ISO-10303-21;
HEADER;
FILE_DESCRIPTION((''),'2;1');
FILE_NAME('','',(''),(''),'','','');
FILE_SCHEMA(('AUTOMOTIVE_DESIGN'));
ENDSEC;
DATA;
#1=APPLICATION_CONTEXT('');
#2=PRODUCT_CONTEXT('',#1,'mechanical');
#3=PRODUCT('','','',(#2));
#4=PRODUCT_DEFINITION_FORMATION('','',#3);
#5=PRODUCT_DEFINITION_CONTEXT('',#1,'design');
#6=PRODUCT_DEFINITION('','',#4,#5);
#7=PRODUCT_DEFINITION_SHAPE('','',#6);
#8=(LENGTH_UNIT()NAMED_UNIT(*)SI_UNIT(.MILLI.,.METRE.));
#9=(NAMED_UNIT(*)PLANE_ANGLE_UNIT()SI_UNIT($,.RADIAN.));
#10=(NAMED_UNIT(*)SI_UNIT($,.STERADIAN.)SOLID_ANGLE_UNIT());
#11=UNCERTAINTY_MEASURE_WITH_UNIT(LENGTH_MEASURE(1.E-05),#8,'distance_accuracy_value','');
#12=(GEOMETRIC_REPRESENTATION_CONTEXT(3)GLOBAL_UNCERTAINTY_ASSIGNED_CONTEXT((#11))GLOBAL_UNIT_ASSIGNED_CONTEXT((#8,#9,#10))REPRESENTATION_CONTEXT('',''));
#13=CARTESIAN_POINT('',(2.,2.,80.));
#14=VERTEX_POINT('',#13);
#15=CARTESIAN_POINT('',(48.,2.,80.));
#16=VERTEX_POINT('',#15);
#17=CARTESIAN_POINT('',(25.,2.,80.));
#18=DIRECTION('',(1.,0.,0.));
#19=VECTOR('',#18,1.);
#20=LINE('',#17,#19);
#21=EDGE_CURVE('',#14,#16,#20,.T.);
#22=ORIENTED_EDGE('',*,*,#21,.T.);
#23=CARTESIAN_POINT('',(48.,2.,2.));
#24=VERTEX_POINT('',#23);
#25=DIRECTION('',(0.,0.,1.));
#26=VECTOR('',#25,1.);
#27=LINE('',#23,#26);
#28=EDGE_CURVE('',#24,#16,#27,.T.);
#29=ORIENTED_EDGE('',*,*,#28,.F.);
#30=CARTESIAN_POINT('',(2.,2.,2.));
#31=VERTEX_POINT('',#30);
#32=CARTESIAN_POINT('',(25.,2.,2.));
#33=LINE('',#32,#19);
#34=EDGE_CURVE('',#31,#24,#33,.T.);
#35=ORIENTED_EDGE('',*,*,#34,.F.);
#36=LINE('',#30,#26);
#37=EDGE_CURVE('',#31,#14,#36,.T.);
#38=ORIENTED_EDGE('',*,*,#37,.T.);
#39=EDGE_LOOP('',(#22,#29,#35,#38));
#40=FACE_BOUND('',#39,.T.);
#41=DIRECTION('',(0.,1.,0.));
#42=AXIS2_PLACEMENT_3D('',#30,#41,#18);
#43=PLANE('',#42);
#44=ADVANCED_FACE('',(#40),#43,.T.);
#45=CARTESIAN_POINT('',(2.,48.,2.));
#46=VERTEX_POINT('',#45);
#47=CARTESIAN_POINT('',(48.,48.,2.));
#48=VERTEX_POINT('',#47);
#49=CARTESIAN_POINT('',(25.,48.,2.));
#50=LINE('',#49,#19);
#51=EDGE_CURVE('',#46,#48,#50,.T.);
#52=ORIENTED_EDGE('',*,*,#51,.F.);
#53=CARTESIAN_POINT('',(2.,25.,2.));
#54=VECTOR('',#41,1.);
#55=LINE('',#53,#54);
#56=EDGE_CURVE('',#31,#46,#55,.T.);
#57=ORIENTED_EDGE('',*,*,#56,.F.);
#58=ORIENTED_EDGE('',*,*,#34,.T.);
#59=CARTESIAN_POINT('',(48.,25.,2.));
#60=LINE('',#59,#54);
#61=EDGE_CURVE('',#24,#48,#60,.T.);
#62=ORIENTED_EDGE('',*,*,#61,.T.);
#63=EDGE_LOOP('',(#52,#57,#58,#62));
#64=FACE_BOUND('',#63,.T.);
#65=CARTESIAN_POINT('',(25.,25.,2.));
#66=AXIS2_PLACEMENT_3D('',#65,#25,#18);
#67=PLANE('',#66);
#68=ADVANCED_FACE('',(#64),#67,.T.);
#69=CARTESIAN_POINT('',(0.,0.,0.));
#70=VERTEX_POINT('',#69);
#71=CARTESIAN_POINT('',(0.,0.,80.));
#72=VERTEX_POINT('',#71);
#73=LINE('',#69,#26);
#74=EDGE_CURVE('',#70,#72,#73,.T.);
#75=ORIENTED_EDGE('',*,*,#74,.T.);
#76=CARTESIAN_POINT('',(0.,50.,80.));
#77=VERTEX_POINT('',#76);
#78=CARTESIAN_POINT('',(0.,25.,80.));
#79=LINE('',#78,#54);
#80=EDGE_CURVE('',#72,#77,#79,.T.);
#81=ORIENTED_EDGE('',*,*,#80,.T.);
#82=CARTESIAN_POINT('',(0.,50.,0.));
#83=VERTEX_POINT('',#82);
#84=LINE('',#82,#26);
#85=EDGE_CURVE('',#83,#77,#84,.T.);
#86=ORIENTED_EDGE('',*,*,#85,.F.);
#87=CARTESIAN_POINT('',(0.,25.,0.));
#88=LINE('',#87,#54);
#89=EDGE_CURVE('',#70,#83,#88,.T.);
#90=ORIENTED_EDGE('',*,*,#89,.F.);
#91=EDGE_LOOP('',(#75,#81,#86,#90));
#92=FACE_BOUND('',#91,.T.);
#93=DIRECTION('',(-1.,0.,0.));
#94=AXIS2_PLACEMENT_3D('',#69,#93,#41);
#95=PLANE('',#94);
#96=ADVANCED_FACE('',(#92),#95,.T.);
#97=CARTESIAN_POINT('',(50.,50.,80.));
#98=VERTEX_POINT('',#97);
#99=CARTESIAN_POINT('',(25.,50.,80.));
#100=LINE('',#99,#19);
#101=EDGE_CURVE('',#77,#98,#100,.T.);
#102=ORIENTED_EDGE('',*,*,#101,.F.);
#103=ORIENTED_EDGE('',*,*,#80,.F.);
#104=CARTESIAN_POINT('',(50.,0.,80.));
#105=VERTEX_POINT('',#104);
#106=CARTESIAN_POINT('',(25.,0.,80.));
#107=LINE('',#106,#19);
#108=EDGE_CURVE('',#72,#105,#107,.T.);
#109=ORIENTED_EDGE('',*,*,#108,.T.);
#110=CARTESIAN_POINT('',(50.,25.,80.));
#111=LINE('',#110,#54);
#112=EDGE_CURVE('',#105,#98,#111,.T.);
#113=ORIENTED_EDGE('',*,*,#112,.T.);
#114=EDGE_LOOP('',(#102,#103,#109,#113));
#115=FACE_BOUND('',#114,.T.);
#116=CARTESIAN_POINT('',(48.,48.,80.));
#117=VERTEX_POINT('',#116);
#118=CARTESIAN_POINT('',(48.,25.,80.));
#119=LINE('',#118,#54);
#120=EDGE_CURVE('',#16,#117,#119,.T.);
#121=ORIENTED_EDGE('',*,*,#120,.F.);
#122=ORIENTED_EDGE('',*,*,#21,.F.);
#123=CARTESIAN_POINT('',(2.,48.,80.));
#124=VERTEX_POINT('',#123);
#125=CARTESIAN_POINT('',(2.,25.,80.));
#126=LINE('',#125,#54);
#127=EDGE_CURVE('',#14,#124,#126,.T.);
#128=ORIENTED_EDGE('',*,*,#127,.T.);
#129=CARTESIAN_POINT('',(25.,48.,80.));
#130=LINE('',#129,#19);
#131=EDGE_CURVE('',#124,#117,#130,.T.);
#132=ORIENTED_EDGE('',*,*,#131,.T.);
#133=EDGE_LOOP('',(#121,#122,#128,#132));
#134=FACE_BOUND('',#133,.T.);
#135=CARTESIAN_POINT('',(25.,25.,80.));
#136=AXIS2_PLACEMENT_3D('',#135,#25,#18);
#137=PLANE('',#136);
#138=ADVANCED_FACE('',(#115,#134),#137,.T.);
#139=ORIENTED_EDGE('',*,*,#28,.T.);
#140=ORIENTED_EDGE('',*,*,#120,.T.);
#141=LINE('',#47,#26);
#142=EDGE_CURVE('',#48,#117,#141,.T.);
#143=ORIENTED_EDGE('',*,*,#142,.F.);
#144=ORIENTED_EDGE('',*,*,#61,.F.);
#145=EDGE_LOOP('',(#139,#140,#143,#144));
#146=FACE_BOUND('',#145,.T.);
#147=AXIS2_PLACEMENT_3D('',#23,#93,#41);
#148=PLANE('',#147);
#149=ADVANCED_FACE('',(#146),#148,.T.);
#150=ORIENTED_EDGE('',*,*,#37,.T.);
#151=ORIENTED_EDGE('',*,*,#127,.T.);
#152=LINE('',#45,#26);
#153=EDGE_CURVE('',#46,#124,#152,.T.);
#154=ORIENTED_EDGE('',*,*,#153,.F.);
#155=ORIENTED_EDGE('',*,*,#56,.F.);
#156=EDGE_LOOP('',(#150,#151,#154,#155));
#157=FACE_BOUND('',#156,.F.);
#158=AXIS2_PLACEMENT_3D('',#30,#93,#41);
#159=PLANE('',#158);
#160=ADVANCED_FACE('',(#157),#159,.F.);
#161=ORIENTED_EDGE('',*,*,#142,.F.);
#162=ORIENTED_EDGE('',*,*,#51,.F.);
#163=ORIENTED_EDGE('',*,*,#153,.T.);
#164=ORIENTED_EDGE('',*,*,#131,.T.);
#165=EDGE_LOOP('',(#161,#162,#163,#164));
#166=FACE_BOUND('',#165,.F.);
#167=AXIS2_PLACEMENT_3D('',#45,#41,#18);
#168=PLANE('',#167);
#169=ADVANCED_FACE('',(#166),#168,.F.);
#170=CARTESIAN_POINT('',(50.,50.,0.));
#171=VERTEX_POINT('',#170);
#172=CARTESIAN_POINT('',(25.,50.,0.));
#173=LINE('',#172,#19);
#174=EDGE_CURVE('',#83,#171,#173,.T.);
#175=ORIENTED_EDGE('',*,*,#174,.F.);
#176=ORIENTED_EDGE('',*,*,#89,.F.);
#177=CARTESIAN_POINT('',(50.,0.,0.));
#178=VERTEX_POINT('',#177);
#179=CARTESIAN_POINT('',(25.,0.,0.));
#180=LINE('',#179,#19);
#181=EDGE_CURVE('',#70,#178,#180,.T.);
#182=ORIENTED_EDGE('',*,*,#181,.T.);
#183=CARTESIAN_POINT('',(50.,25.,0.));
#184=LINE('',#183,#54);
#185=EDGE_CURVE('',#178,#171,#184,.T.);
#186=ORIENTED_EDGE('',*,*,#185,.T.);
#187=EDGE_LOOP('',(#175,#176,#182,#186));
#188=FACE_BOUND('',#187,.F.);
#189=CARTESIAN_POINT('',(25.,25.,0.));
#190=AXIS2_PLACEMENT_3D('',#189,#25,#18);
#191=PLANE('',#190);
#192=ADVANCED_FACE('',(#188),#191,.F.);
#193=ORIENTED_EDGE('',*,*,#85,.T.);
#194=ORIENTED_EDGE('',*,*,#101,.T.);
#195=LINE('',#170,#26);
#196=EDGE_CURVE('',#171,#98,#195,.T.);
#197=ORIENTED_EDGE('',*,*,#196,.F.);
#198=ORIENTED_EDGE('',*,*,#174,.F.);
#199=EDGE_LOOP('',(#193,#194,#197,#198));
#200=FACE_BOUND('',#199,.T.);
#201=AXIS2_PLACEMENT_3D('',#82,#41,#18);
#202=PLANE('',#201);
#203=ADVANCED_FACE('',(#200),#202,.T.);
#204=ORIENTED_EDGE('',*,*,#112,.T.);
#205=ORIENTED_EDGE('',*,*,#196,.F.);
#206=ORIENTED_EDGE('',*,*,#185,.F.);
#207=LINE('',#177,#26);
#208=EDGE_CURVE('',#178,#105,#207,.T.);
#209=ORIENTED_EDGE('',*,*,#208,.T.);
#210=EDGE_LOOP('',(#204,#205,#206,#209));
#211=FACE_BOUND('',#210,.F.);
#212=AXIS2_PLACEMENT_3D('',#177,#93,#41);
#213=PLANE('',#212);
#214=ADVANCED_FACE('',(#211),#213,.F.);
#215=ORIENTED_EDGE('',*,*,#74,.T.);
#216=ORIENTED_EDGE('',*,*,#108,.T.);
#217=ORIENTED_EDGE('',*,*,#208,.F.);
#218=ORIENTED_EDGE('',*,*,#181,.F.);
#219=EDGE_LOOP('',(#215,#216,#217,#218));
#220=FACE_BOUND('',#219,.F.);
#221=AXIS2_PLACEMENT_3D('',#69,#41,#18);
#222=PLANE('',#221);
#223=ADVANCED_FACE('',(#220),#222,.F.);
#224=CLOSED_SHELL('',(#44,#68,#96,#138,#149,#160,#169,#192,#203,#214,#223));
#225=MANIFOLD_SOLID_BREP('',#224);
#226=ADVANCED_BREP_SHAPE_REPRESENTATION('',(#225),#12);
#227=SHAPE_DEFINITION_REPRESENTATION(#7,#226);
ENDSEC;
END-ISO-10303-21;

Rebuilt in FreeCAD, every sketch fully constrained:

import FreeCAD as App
import Part
import Sketcher

V = App.Vector
Q = App.Units.Quantity

doc = App.newDocument("Part")
body = doc.addObject("PartDesign::Body", "Body")

# Sketch on XY plane
sketch1 = body.newObject("Sketcher::SketchObject", "Sketch")
sketch1.AttachmentSupport = (doc.getObject("XY_Plane"), [""])
sketch1.MapMode = "FlatFace"
sketch1.AttachmentOffset = App.Placement(V(0, 0, 2), App.Rotation())
sketch1.addGeometry([
    Part.LineSegment(V(2, 48, 0), V(2, 2, 0)),
    Part.LineSegment(V(2, 2, 0), V(48, 2, 0)),
    Part.LineSegment(V(48, 2, 0), V(48, 48, 0)),
    Part.LineSegment(V(48, 48, 0), V(2, 48, 0)),
], False)
sketch1.addConstraint([
    Sketcher.Constraint("Coincident", 0, 2, 1, 1),
    Sketcher.Constraint("Coincident", 1, 2, 2, 1),
    Sketcher.Constraint("Coincident", 2, 2, 3, 1),
    Sketcher.Constraint("Coincident", 3, 2, 0, 1),
    Sketcher.Constraint("Vertical", 0),
    Sketcher.Constraint("Horizontal", 1),
    Sketcher.Constraint("Vertical", 2),
    Sketcher.Constraint("Horizontal", 3),
    Sketcher.Constraint("Equal", 3, 0),
    Sketcher.Constraint("DistanceX", 1, 1, 1, 2, Q("46 mm")),
    Sketcher.Constraint("DistanceX", -1, 1, 0, 2, Q("2 mm")),
    Sketcher.Constraint("DistanceY", -1, 1, 0, 2, Q("2 mm")),
])
pad1 = body.newObject("PartDesign::Pad", "Pad")
pad1.Profile = sketch1
pad1.Length = 78
body2 = doc.addObject("PartDesign::Body", "Body001")

# Sketch on XY plane
sketch2 = body2.newObject("Sketcher::SketchObject", "Sketch001")
sketch2.AttachmentSupport = (doc.getObject("XY_Plane001"), [""])
sketch2.MapMode = "FlatFace"
sketch2.addGeometry([
    Part.LineSegment(V(0, 50, 0), V(0, 0, 0)),
    Part.LineSegment(V(0, 0, 0), V(50, 0, 0)),
    Part.LineSegment(V(50, 0, 0), V(50, 50, 0)),
    Part.LineSegment(V(50, 50, 0), V(0, 50, 0)),
], False)
sketch2.addConstraint([
    Sketcher.Constraint("Coincident", 0, 2, 1, 1),
    Sketcher.Constraint("Coincident", 1, 2, 2, 1),
    Sketcher.Constraint("Coincident", 2, 2, 3, 1),
    Sketcher.Constraint("Coincident", 3, 2, 0, 1),
    Sketcher.Constraint("Vertical", 0),
    Sketcher.Constraint("Horizontal", 1),
    Sketcher.Constraint("Vertical", 2),
    Sketcher.Constraint("Horizontal", 3),
    Sketcher.Constraint("Coincident", 0, 2, -1, 1),
    Sketcher.Constraint("Equal", 3, 0),
    Sketcher.Constraint("DistanceX", 1, 1, 1, 2, Q("50 mm")),
])
pad2 = body2.newObject("PartDesign::Pad", "Pad001")
pad2.Profile = sketch2
pad2.Length = 80
doc.recompute()

boolean = body2.newObject("PartDesign::Boolean", "Boolean")
boolean.Type = "Cut"
boolean.addObjects([body])

doc.recompute()
